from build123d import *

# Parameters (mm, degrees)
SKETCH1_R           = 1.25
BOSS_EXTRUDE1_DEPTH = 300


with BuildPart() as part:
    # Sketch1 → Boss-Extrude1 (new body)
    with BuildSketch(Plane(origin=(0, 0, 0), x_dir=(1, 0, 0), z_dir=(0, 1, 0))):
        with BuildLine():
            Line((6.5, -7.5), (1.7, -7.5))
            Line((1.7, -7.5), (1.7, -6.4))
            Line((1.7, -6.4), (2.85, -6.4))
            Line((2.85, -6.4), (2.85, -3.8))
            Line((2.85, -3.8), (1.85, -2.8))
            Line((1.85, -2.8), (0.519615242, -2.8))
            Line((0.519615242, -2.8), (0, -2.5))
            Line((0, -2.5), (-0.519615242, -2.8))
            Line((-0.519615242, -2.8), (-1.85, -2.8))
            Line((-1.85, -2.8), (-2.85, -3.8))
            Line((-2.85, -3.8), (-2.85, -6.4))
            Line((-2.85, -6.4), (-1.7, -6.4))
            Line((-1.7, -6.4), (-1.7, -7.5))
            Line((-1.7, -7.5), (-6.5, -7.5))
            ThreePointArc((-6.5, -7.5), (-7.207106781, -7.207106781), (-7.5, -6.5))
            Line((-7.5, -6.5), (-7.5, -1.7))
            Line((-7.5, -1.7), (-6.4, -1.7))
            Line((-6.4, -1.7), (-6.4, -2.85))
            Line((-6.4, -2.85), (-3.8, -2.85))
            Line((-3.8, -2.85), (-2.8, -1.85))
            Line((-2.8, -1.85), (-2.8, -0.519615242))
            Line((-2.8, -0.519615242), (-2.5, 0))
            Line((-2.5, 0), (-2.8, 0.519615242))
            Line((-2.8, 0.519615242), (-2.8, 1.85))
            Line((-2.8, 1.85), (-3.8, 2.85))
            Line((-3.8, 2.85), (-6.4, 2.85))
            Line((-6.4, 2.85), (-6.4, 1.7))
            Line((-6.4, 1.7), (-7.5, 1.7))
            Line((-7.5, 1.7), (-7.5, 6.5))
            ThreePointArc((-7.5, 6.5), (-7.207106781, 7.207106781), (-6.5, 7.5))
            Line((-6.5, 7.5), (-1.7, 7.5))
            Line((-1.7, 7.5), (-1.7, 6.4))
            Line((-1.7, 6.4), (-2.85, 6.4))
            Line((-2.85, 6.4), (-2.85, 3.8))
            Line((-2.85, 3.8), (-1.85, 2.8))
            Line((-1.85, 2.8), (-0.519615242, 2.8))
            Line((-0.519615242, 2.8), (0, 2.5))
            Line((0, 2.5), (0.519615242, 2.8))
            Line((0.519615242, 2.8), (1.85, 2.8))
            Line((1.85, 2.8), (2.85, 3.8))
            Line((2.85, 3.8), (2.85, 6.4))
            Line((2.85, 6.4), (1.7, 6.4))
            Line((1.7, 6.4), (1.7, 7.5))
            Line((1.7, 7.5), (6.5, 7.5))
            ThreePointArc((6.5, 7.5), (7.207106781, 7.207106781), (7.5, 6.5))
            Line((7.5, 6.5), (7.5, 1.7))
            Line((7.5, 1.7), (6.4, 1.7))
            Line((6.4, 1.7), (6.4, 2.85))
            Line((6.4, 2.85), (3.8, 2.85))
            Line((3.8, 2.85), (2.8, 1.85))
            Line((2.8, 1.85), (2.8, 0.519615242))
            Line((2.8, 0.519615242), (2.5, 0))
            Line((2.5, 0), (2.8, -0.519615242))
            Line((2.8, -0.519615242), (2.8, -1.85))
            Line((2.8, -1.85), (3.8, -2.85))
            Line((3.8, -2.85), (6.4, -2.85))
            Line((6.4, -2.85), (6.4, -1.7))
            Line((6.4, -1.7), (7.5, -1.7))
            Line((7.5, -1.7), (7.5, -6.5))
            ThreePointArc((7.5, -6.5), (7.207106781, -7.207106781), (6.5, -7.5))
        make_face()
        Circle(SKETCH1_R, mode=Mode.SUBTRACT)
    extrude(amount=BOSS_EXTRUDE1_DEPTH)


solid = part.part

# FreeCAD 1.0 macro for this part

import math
import FreeCAD as App
import Part
import Sketcher

V = App.Vector
Q = App.Units.Quantity

doc = App.newDocument("Part")
body = doc.addObject("PartDesign::Body", "Body")

# Sketch on XZ plane
sketch1 = body.newObject("Sketcher::SketchObject", "Sketch")
sketch1.AttachmentSupport = (doc.getObject("XZ_Plane"), [""])
sketch1.MapMode = "FlatFace"
sketch1.addGeometry(Part.LineSegment(V(1.7, 7.5, 0), V(6.5, 7.5, 0)), False)
sketch1.addGeometry(Part.ArcOfCircle(Part.Circle(V(6.5, 6.5, 0), V(0, 0, 1), 1), math.radians(0), math.radians(90)), False)
sketch1.addGeometry(Part.LineSegment(V(7.5, 6.5, 0), V(7.5, 1.7, 0)), False)
sketch1.addGeometry(Part.LineSegment(V(7.5, 1.7, 0), V(6.4, 1.7, 0)), False)
sketch1.addGeometry(Part.LineSegment(V(6.4, 1.7, 0), V(6.4, 2.9, 0)), False)
sketch1.addGeometry(Part.LineSegment(V(6.4, 2.9, 0), V(3.8, 2.9, 0)), False)
sketch1.addGeometry(Part.LineSegment(V(3.8, 2.9, 0), V(2.8, 1.9, 0)), False)
sketch1.addGeometry(Part.LineSegment(V(2.8, 1.9, 0), V(2.8, 0.5, 0)), False)
sketch1.addGeometry(Part.LineSegment(V(2.8, 0.5, 0), V(2.5, 0, 0)), False)
sketch1.addGeometry(Part.LineSegment(V(2.5, 0, 0), V(2.8, -0.5, 0)), False)
sketch1.addGeometry(Part.LineSegment(V(2.8, -0.5, 0), V(2.8, -1.9, 0)), False)
sketch1.addGeometry(Part.LineSegment(V(2.8, -1.9, 0), V(3.8, -2.9, 0)), False)
sketch1.addGeometry(Part.LineSegment(V(3.8, -2.9, 0), V(6.4, -2.9, 0)), False)
sketch1.addGeometry(Part.LineSegment(V(6.4, -2.9, 0), V(6.4, -1.7, 0)), False)
sketch1.addGeometry(Part.LineSegment(V(6.4, -1.7, 0), V(7.5, -1.7, 0)), False)
sketch1.addGeometry(Part.LineSegment(V(7.5, -1.7, 0), V(7.5, -6.5, 0)), False)
sketch1.addGeometry(Part.ArcOfCircle(Part.Circle(V(6.5, -6.5, 0), V(0, 0, 1), 1), math.radians(-90), math.radians(0)), False)
sketch1.addGeometry(Part.LineSegment(V(6.5, -7.5, 0), V(1.7, -7.5, 0)), False)
sketch1.addGeometry(Part.LineSegment(V(1.7, -7.5, 0), V(1.7, -6.4, 0)), False)
sketch1.addGeometry(Part.LineSegment(V(1.7, -6.4, 0), V(2.9, -6.4, 0)), False)
sketch1.addGeometry(Part.LineSegment(V(2.9, -6.4, 0), V(2.9, -3.8, 0)), False)
sketch1.addGeometry(Part.LineSegment(V(2.9, -3.8, 0), V(1.9, -2.8, 0)), False)
sketch1.addGeometry(Part.LineSegment(V(1.9, -2.8, 0), V(0.5, -2.8, 0)), False)
sketch1.addGeometry(Part.LineSegment(V(0.5, -2.8, 0), V(0, -2.5, 0)), False)
sketch1.addGeometry(Part.LineSegment(V(0, -2.5, 0), V(-0.5, -2.8, 0)), False)
sketch1.addGeometry(Part.LineSegment(V(-0.5, -2.8, 0), V(-1.9, -2.8, 0)), False)
sketch1.addGeometry(Part.LineSegment(V(-1.9, -2.8, 0), V(-2.9, -3.8, 0)), False)
sketch1.addGeometry(Part.LineSegment(V(-2.9, -3.8, 0), V(-2.9, -6.4, 0)), False)
sketch1.addGeometry(Part.LineSegment(V(-2.9, -6.4, 0), V(-1.7, -6.4, 0)), False)
sketch1.addGeometry(Part.LineSegment(V(-1.7, -6.4, 0), V(-1.7, -7.5, 0)), False)
sketch1.addGeometry(Part.LineSegment(V(-1.7, -7.5, 0), V(-6.5, -7.5, 0)), False)
sketch1.addGeometry(Part.ArcOfCircle(Part.Circle(V(-6.5, -6.5, 0), V(0, 0, 1), 1), math.radians(-180), math.radians(-90)), False)
sketch1.addGeometry(Part.LineSegment(V(-7.5, -6.5, 0), V(-7.5, -1.7, 0)), False)
sketch1.addGeometry(Part.LineSegment(V(-7.5, -1.7, 0), V(-6.4, -1.7, 0)), False)
sketch1.addGeometry(Part.LineSegment(V(-6.4, -1.7, 0), V(-6.4, -2.9, 0)), False)
sketch1.addGeometry(Part.LineSegment(V(-6.4, -2.9, 0), V(-3.8, -2.9, 0)), False)
sketch1.addGeometry(Part.LineSegment(V(-3.8, -2.9, 0), V(-2.8, -1.9, 0)), False)
sketch1.addGeometry(Part.LineSegment(V(-2.8, -1.9, 0), V(-2.8, -0.5, 0)), False)
sketch1.addGeometry(Part.LineSegment(V(-2.8, -0.5, 0), V(-2.5, 0, 0)), False)
sketch1.addGeometry(Part.LineSegment(V(-2.5, 0, 0), V(-2.8, 0.5, 0)), False)
sketch1.addGeometry(Part.LineSegment(V(-2.8, 0.5, 0), V(-2.8, 1.9, 0)), False)
sketch1.addGeometry(Part.LineSegment(V(-2.8, 1.9, 0), V(-3.8, 2.9, 0)), False)
sketch1.addGeometry(Part.LineSegment(V(-3.8, 2.9, 0), V(-6.4, 2.9, 0)), False)
sketch1.addGeometry(Part.LineSegment(V(-6.4, 2.9, 0), V(-6.4, 1.7, 0)), False)
sketch1.addGeometry(Part.LineSegment(V(-6.4, 1.7, 0), V(-7.5, 1.7, 0)), False)
sketch1.addGeometry(Part.LineSegment(V(-7.5, 1.7, 0), V(-7.5, 6.5, 0)), False)
sketch1.addGeometry(Part.ArcOfCircle(Part.Circle(V(-6.5, 6.5, 0), V(0, 0, 1), 1), math.radians(90), math.radians(180)), False)
sketch1.addGeometry(Part.LineSegment(V(-6.5, 7.5, 0), V(-1.7, 7.5, 0)), False)
sketch1.addGeometry(Part.LineSegment(V(-1.7, 7.5, 0), V(-1.7, 6.4, 0)), False)
sketch1.addGeometry(Part.LineSegment(V(-1.7, 6.4, 0), V(-2.9, 6.4, 0)), False)
sketch1.addGeometry(Part.LineSegment(V(-2.9, 6.4, 0), V(-2.9, 3.8, 0)), False)
sketch1.addGeometry(Part.LineSegment(V(-2.9, 3.8, 0), V(-1.9, 2.8, 0)), False)
sketch1.addGeometry(Part.LineSegment(V(-1.9, 2.8, 0), V(-0.5, 2.8, 0)), False)
sketch1.addGeometry(Part.LineSegment(V(-0.5, 2.8, 0), V(0, 2.5, 0)), False)
sketch1.addGeometry(Part.LineSegment(V(0, 2.5, 0), V(0.5, 2.8, 0)), False)
sketch1.addGeometry(Part.LineSegment(V(0.5, 2.8, 0), V(1.9, 2.8, 0)), False)
sketch1.addGeometry(Part.LineSegment(V(1.9, 2.8, 0), V(2.9, 3.8, 0)), False)
sketch1.addGeometry(Part.LineSegment(V(2.9, 3.8, 0), V(2.9, 6.4, 0)), False)
sketch1.addGeometry(Part.LineSegment(V(2.9, 6.4, 0), V(1.7, 6.4, 0)), False)
sketch1.addGeometry(Part.LineSegment(V(1.7, 6.4, 0), V(1.7, 7.5, 0)), False)
sketch1.addGeometry(Part.Circle(V(0, 0, 0), V(0, 0, 1), 1.2), False)
sketch1.addConstraint(Sketcher.Constraint("Tangent", 0, 2, 1, 2))
sketch1.addConstraint(Sketcher.Constraint("Tangent", 1, 1, 2, 1))
sketch1.addConstraint(Sketcher.Constraint("Coincident", 2, 2, 3, 1))
sketch1.addConstraint(Sketcher.Constraint("Coincident", 3, 2, 4, 1))
sketch1.addConstraint(Sketcher.Constraint("Coincident", 4, 2, 5, 1))
sketch1.addConstraint(Sketcher.Constraint("Coincident", 5, 2, 6, 1))
sketch1.addConstraint(Sketcher.Constraint("Coincident", 6, 2, 7, 1))
sketch1.addConstraint(Sketcher.Constraint("Coincident", 7, 2, 8, 1))
sketch1.addConstraint(Sketcher.Constraint("Coincident", 8, 2, 9, 1))
sketch1.addConstraint(Sketcher.Constraint("Coincident", 9, 2, 10, 1))
sketch1.addConstraint(Sketcher.Constraint("Coincident", 10, 2, 11, 1))
sketch1.addConstraint(Sketcher.Constraint("Coincident", 11, 2, 12, 1))
sketch1.addConstraint(Sketcher.Constraint("Coincident", 12, 2, 13, 1))
sketch1.addConstraint(Sketcher.Constraint("Coincident", 13, 2, 14, 1))
sketch1.addConstraint(Sketcher.Constraint("Coincident", 14, 2, 15, 1))
sketch1.addConstraint(Sketcher.Constraint("Tangent", 15, 2, 16, 2))
sketch1.addConstraint(Sketcher.Constraint("Tangent", 16, 1, 17, 1))
sketch1.addConstraint(Sketcher.Constraint("Coincident", 17, 2, 18, 1))
sketch1.addConstraint(Sketcher.Constraint("Coincident", 18, 2, 19, 1))
sketch1.addConstraint(Sketcher.Constraint("Coincident", 19, 2, 20, 1))
sketch1.addConstraint(Sketcher.Constraint("Coincident", 20, 2, 21, 1))
sketch1.addConstraint(Sketcher.Constraint("Coincident", 21, 2, 22, 1))
sketch1.addConstraint(Sketcher.Constraint("Coincident", 22, 2, 23, 1))
sketch1.addConstraint(Sketcher.Constraint("Coincident", 23, 2, 24, 1))
sketch1.addConstraint(Sketcher.Constraint("Coincident", 24, 2, 25, 1))
sketch1.addConstraint(Sketcher.Constraint("Coincident", 25, 2, 26, 1))
sketch1.addConstraint(Sketcher.Constraint("Coincident", 26, 2, 27, 1))
sketch1.addConstraint(Sketcher.Constraint("Coincident", 27, 2, 28, 1))
sketch1.addConstraint(Sketcher.Constraint("Coincident", 28, 2, 29, 1))
sketch1.addConstraint(Sketcher.Constraint("Coincident", 29, 2, 30, 1))
sketch1.addConstraint(Sketcher.Constraint("Tangent", 30, 2, 31, 2))
sketch1.addConstraint(Sketcher.Constraint("Tangent", 31, 1, 32, 1))
sketch1.addConstraint(Sketcher.Constraint("Coincident", 32, 2, 33, 1))
sketch1.addConstraint(Sketcher.Constraint("Coincident", 33, 2, 34, 1))
sketch1.addConstraint(Sketcher.Constraint("Coincident", 34, 2, 35, 1))
sketch1.addConstraint(Sketcher.Constraint("Coincident", 35, 2, 36, 1))
sketch1.addConstraint(Sketcher.Constraint("Coincident", 36, 2, 37, 1))
sketch1.addConstraint(Sketcher.Constraint("Coincident", 37, 2, 38, 1))
sketch1.addConstraint(Sketcher.Constraint("Coincident", 38, 2, 39, 1))
sketch1.addConstraint(Sketcher.Constraint("Coincident", 39, 2, 40, 1))
sketch1.addConstraint(Sketcher.Constraint("Coincident", 40, 2, 41, 1))
sketch1.addConstraint(Sketcher.Constraint("Coincident", 41, 2, 42, 1))
sketch1.addConstraint(Sketcher.Constraint("Coincident", 42, 2, 43, 1))
sketch1.addConstraint(Sketcher.Constraint("Coincident", 43, 2, 44, 1))
sketch1.addConstraint(Sketcher.Constraint("Coincident", 44, 2, 45, 1))
sketch1.addConstraint(Sketcher.Constraint("Tangent", 45, 2, 46, 2))
sketch1.addConstraint(Sketcher.Constraint("Tangent", 46, 1, 47, 1))
sketch1.addConstraint(Sketcher.Constraint("Coincident", 47, 2, 48, 1))
sketch1.addConstraint(Sketcher.Constraint("Coincident", 48, 2, 49, 1))
sketch1.addConstraint(Sketcher.Constraint("Coincident", 49, 2, 50, 1))
sketch1.addConstraint(Sketcher.Constraint("Coincident", 50, 2, 51, 1))
sketch1.addConstraint(Sketcher.Constraint("Coincident", 51, 2, 52, 1))
sketch1.addConstraint(Sketcher.Constraint("Coincident", 52, 2, 53, 1))
sketch1.addConstraint(Sketcher.Constraint("Coincident", 53, 2, 54, 1))
sketch1.addConstraint(Sketcher.Constraint("Coincident", 54, 2, 55, 1))
sketch1.addConstraint(Sketcher.Constraint("Coincident", 55, 2, 56, 1))
sketch1.addConstraint(Sketcher.Constraint("Coincident", 56, 2, 57, 1))
sketch1.addConstraint(Sketcher.Constraint("Coincident", 57, 2, 58, 1))
sketch1.addConstraint(Sketcher.Constraint("Coincident", 58, 2, 59, 1))
sketch1.addConstraint(Sketcher.Constraint("Coincident", 59, 2, 0, 1))
sketch1.addConstraint(Sketcher.Constraint("Horizontal", 0))
sketch1.addConstraint(Sketcher.Constraint("Vertical", 2))
sketch1.addConstraint(Sketcher.Constraint("Horizontal", 3))
sketch1.addConstraint(Sketcher.Constraint("Vertical", 4))
sketch1.addConstraint(Sketcher.Constraint("Horizontal", 5))
sketch1.addConstraint(Sketcher.Constraint("Vertical", 7))
sketch1.addConstraint(Sketcher.Constraint("Vertical", 10))
sketch1.addConstraint(Sketcher.Constraint("Horizontal", 12))
sketch1.addConstraint(Sketcher.Constraint("Vertical", 13))
sketch1.addConstraint(Sketcher.Constraint("Horizontal", 14))
sketch1.addConstraint(Sketcher.Constraint("Vertical", 15))
sketch1.addConstraint(Sketcher.Constraint("Horizontal", 17))
sketch1.addConstraint(Sketcher.Constraint("Vertical", 18))
sketch1.addConstraint(Sketcher.Constraint("Horizontal", 19))
sketch1.addConstraint(Sketcher.Constraint("Vertical", 20))
sketch1.addConstraint(Sketcher.Constraint("Horizontal", 22))
sketch1.addConstraint(Sketcher.Constraint("Horizontal", 25))
sketch1.addConstraint(Sketcher.Constraint("Vertical", 27))
sketch1.addConstraint(Sketcher.Constraint("Horizontal", 28))
sketch1.addConstraint(Sketcher.Constraint("Vertical", 29))
sketch1.addConstraint(Sketcher.Constraint("Horizontal", 30))
sketch1.addConstraint(Sketcher.Constraint("Vertical", 32))
sketch1.addConstraint(Sketcher.Constraint("Horizontal", 33))
sketch1.addConstraint(Sketcher.Constraint("Vertical", 34))
sketch1.addConstraint(Sketcher.Constraint("Horizontal", 35))
sketch1.addConstraint(Sketcher.Constraint("Vertical", 37))
sketch1.addConstraint(Sketcher.Constraint("Vertical", 40))
sketch1.addConstraint(Sketcher.Constraint("Horizontal", 42))
sketch1.addConstraint(Sketcher.Constraint("Vertical", 43))
sketch1.addConstraint(Sketcher.Constraint("Horizontal", 44))
sketch1.addConstraint(Sketcher.Constraint("Vertical", 45))
sketch1.addConstraint(Sketcher.Constraint("Horizontal", 47))
sketch1.addConstraint(Sketcher.Constraint("Vertical", 48))
sketch1.addConstraint(Sketcher.Constraint("Horizontal", 49))
sketch1.addConstraint(Sketcher.Constraint("Vertical", 50))
sketch1.addConstraint(Sketcher.Constraint("Horizontal", 52))
sketch1.addConstraint(Sketcher.Constraint("Horizontal", 55))
sketch1.addConstraint(Sketcher.Constraint("Vertical", 57))
sketch1.addConstraint(Sketcher.Constraint("Horizontal", 58))
sketch1.addConstraint(Sketcher.Constraint("Vertical", 59))
sketch1.addConstraint(Sketcher.Constraint("Coincident", 60, 3, -1, 1))
sketch1.addConstraint(Sketcher.Constraint("Equal", 1, 16))
sketch1.addConstraint(Sketcher.Constraint("Equal", 16, 31))
sketch1.addConstraint(Sketcher.Constraint("Equal", 31, 46))
sketch1.addConstraint(Sketcher.Constraint("Symmetric", 1, 3, 31, 3, -1, 1))
sketch1.addConstraint(Sketcher.Constraint("Symmetric", 16, 3, 46, 3, -1, 1))
sketch1.addConstraint(Sketcher.Constraint("Symmetric", 3, 2, 33, 2, -1, 1))
sketch1.addConstraint(Sketcher.Constraint("Symmetric", 5, 2, 35, 2, -1, 1))
sketch1.addConstraint(Sketcher.Constraint("Symmetric", 6, 2, 36, 2, -1, 1))
sketch1.addConstraint(Sketcher.Constraint("Symmetric", 8, 2, 38, 2, -1, 1))
sketch1.addConstraint(Sketcher.Constraint("Symmetric", 9, 2, 39, 2, -1, 1))
sketch1.addConstraint(Sketcher.Constraint("Symmetric", 11, 2, 41, 2, -1, 1))
sketch1.addConstraint(Sketcher.Constraint("Symmetric", 13, 2, 43, 2, -1, 1))
sketch1.addConstraint(Sketcher.Constraint("Symmetric", 18, 2, 48, 2, -1, 1))
sketch1.addConstraint(Sketcher.Constraint("Symmetric", 20, 2, 50, 2, -1, 1))
sketch1.addConstraint(Sketcher.Constraint("Symmetric", 21, 2, 51, 2, -1, 1))
sketch1.addConstraint(Sketcher.Constraint("Symmetric", 23, 2, 53, 2, -1, 1))
sketch1.addConstraint(Sketcher.Constraint("Symmetric", 24, 2, 54, 2, -1, 1))
sketch1.addConstraint(Sketcher.Constraint("Symmetric", 26, 2, 56, 2, -1, 1))
sketch1.addConstraint(Sketcher.Constraint("Symmetric", 28, 2, 58, 2, -1, 1))
sketch1.addConstraint(Sketcher.Constraint("Symmetric", 16, 3, 31, 3, -2))
sketch1.addConstraint(Sketcher.Constraint("Symmetric", 22, 2, 24, 2, -2))
sketch1.addConstraint(Sketcher.Constraint("Symmetric", 20, 2, 26, 2, -2))
sketch1.addConstraint(Sketcher.Constraint("Symmetric", 18, 2, 28, 2, -2))
sketch1.addConstraint(Sketcher.Constraint("Symmetric", 13, 2, 33, 2, -2))
sketch1.addConstraint(Sketcher.Constraint("Symmetric", 11, 2, 35, 2, -2))
sketch1.addConstraint(Sketcher.Constraint("Symmetric", 10, 2, 36, 2, -2))
sketch1.addConstraint(Sketcher.Constraint("PointOnObject", 8, 2, -1))
sketch1.addConstraint(Sketcher.Constraint("PointOnObject", 23, 2, -2))
sketch1.addConstraint(Sketcher.Constraint("Perpendicular", 6, 11))
sketch1.addConstraint(Sketcher.Constraint("Parallel", 11, 21))
sketch1.addConstraint(Sketcher.Constraint("Perpendicular", 8, 23))
sketch1.addConstraint(Sketcher.Constraint("Perpendicular", 9, 24))
sketch1.addConstraint(Sketcher.Constraint("Perpendicular", 21, 26))
sketch1.addConstraint(Sketcher.Constraint("Perpendicular", 23, 38))
sketch1.addConstraint(Sketcher.Constraint("Perpendicular", 36, 41))
sketch1.addConstraint(Sketcher.Constraint("Perpendicular", 38, 53))
sketch1.addConstraint(Sketcher.Constraint("Perpendicular", 51, 56))
sketch1.addConstraint(Sketcher.Constraint("Equal", 47, 2))
sketch1.addConstraint(Sketcher.Constraint("Equal", 58, 4))
sketch1.addConstraint(Sketcher.Constraint("Equal", 55, 7))
sketch1.addConstraint(Sketcher.Constraint("Equal", 44, 18))
sketch1.addConstraint(Sketcher.Constraint("Equal", 42, 20))
sketch1.addConstraint(Sketcher.Constraint("Equal", 11, 21))
sketch1.addConstraint(Sketcher.Constraint("Equal", 9, 23))
sketch1.addConstraint(Sketcher.Constraint("Radius", 1, Q("1 mm")))
sketch1.addConstraint(Sketcher.Constraint("Diameter", 60, Q("2.5 mm")))
sketch1.addConstraint(Sketcher.Constraint("Angle", 8, Q("-120 deg")))
sketch1.addConstraint(Sketcher.Constraint("DistanceX", 0, 1, 0, 2, Q("4.8 mm")))
sketch1.addConstraint(Sketcher.Constraint("DistanceX", 3, 2, 3, 1, Q("1.1 mm")))
sketch1.addConstraint(Sketcher.Constraint("DistanceX", 5, 2, 5, 1, Q("2.6 mm")))
sketch1.addConstraint(Sketcher.Constraint("Distance", 8, Q("0.6 mm")))
sketch1.addConstraint(Sketcher.Constraint("DistanceX", 19, 1, 19, 2, Q("1.15 mm")))
sketch1.addConstraint(Sketcher.Constraint("DistanceX", -1, 1, 1, 3, Q("6.5 mm")))
sketch1.addConstraint(Sketcher.Constraint("DistanceX", -1, 1, 6, 2, Q("2.8 mm")))
pad1 = body.newObject("PartDesign::Pad", "Pad")
pad1.Profile = sketch1
pad1.Length = 300
pad1.Reversed = True

doc.recompute()
